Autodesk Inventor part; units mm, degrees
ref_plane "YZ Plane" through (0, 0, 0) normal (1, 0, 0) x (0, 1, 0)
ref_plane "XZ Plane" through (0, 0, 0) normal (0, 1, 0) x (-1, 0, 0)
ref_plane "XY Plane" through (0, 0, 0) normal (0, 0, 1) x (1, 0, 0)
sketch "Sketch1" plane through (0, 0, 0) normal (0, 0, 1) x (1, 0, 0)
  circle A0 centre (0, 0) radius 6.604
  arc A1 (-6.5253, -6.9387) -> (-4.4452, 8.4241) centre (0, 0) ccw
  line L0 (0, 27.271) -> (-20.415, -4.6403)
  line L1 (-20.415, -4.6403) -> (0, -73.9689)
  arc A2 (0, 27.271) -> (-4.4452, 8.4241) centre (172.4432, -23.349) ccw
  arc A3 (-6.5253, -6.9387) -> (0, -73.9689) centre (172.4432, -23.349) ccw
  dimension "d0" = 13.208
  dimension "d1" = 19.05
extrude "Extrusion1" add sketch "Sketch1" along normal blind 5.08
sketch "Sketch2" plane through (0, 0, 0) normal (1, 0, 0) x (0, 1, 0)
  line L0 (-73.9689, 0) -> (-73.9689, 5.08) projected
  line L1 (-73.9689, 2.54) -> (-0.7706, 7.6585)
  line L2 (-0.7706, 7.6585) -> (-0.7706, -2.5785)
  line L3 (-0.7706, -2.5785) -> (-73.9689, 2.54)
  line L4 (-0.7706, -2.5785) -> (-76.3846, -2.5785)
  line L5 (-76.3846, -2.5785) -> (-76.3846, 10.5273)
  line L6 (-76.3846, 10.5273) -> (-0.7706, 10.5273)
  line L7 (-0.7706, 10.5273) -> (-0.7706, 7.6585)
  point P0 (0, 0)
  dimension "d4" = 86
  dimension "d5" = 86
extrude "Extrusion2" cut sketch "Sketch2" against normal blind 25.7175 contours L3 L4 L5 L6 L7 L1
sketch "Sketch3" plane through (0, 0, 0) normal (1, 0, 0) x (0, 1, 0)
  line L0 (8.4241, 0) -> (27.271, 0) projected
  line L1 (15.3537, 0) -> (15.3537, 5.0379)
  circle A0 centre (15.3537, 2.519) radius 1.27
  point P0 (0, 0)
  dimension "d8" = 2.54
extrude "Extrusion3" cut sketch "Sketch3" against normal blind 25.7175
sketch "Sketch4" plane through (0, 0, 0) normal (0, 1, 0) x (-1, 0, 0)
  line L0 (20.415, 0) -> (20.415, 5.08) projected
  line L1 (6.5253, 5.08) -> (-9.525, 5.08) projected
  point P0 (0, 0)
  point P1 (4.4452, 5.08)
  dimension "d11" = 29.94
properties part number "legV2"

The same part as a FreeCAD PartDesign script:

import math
import FreeCAD as App
import Part
import Sketcher

V = App.Vector
Q = App.Units.Quantity

doc = App.newDocument("Part")
body = doc.addObject("PartDesign::Body", "Body")

# Sketch on XY plane
sketch1 = doc.addObject("Sketcher::SketchObject", "Sketch")
body.addObject(sketch1)
sketch1.AttachmentSupport = (doc.XY_Plane, [""])
sketch1.MapMode = "FlatFace"
sketch1.addGeometry([
    Part.ArcOfCircle(Part.Circle(V(172, -23, 0), V(0, 0, 1), 180), math.radians(175), math.radians(196)),  # 0
    Part.ArcOfCircle(Part.Circle(V(0, 0, 0), V(0, 0, 1), 10), math.radians(-133), math.radians(118)),  # 1
    Part.ArcOfCircle(Part.Circle(V(172, -23, 0), V(0, 0, 1), 180), math.radians(163.64), math.radians(169.82)),  # 2
    Part.LineSegment(V(0, 27, 0), V(-20, -5, 0)),  # 3
    Part.LineSegment(V(-20, -5, 0), V(0, -74, 0)),  # 4
    Part.Circle(V(0, 0, 0), V(0, 0, 1), 7),  # 5
], False)
sketch1.addConstraint([
    Sketcher.Constraint("Coincident", 0, 1, 1, 1),
    Sketcher.Constraint("Coincident", 1, 2, 2, 2),
    Sketcher.Constraint("Coincident", 2, 1, 3, 1),
    Sketcher.Constraint("Coincident", 3, 2, 4, 1),
    Sketcher.Constraint("Coincident", 4, 2, 0, 2),
    Sketcher.Constraint("Coincident", 1, 3, -1, 1),
    Sketcher.Constraint("Coincident", 5, 3, -1, 1),
    Sketcher.Constraint("PointOnObject", 2, 1, -2),
    Sketcher.Constraint("PointOnObject", 4, 2, -2),
    Sketcher.Constraint("Diameter", 5, Q("0.52 in")),
    Sketcher.Constraint("Radius", 1, Q("0.375 in")),
    Sketcher.Constraint("Radius", 0, 179.7193),
    Sketcher.Constraint("Radius", 2, 179.714),
    Sketcher.Constraint("DistanceX", 1, 2, -1, 1, Q("0.175 in")),
    Sketcher.Constraint("DistanceX", 0, 1, 0, 3, Q("7.046 in")),
    Sketcher.Constraint("DistanceY", 1, 2, 2, 1, Q("0.742 in")),
    Sketcher.Constraint("DistanceX", -1, 1, 0, 3, Q("6.7891 in")),
    Sketcher.Constraint("DistanceY", 3, 2, -1, 1, Q("0.1827 in")),
    Sketcher.Constraint("Distance", 3, 37.8828),
])
pad1 = doc.addObject("PartDesign::Pad", "Pad")
body.addObject(pad1)
pad1.Profile = sketch1
pad1.Length = Q("0.2 in")

# Sketch on YZ plane
sketch2 = doc.addObject("Sketcher::SketchObject", "Sketch001")
body.addObject(sketch2)
sketch2.AttachmentSupport = (doc.YZ_Plane, [""])
sketch2.MapMode = "FlatFace"
sketch2.addGeometry([
    Part.LineSegment(V(-0.8, -2.6, 0), V(-74, 2.5, 0)),  # 0
    Part.LineSegment(V(-74, 2.5, 0), V(-0.8, 7.7, 0)),  # 1
    Part.LineSegment(V(-0.8, 7.7, 0), V(-0.8, 10.5, 0)),  # 2
    Part.LineSegment(V(-0.8, 10.5, 0), V(-76.4, 10.5, 0)),  # 3
    Part.LineSegment(V(-76.4, 10.5, 0), V(-76.4, -2.6, 0)),  # 4
    Part.LineSegment(V(-76.4, -2.6, 0), V(-0.8, -2.6, 0)),  # 5
], False)
sketch2.addConstraint([
    Sketcher.Constraint("Coincident", 0, 2, 1, 1),
    Sketcher.Constraint("Coincident", 1, 2, 2, 1),
    Sketcher.Constraint("Coincident", 2, 2, 3, 1),
    Sketcher.Constraint("Coincident", 3, 2, 4, 1),
    Sketcher.Constraint("Coincident", 4, 2, 5, 1),
    Sketcher.Constraint("Coincident", 5, 2, 0, 1),
    Sketcher.Constraint("Vertical", 2),
    Sketcher.Constraint("Horizontal", 3),
    Sketcher.Constraint("Vertical", 4),
    Sketcher.Constraint("Horizontal", 5),
    Sketcher.Constraint("Vertical", 2, 2, 5, 2),
    Sketcher.Constraint("Equal", 0, 1),
    Sketcher.Constraint("Angle", 0, Q("176 deg")),
    Sketcher.Constraint("DistanceY", -1, 1, 0, 2, Q("0.1 in")),
    Sketcher.Constraint("DistanceX", 3, 2, 3, 1, 75.614),
    Sketcher.Constraint("DistanceY", 2, 1, 2, 2, 2.8688),
    Sketcher.Constraint("DistanceY", 4, 2, 4, 1, 13.1058),
    Sketcher.Constraint("DistanceX", 0, 2, -1, 1, 73.969),
])
pocket1 = doc.addObject("PartDesign::Pocket", "Pocket")
body.addObject(pocket1)
pocket1.Profile = sketch2
pocket1.Length = Q("1.0125 in")

# Sketch on YZ plane
sketch3 = doc.addObject("Sketcher::SketchObject", "Sketch002")
body.addObject(sketch3)
sketch3.AttachmentSupport = (doc.YZ_Plane, [""])
sketch3.MapMode = "FlatFace"
sketch3.addGeometry(Part.Circle(V(15.4, 2.5, 0), V(0, 0, 1), 1.3), False)
sketch3.addConstraint([
    Sketcher.Constraint("Diameter", 0, Q("0.1 in")),
    Sketcher.Constraint("DistanceX", -1, 1, 0, 3, 15.3537),
    Sketcher.Constraint("DistanceY", -1, 1, 0, 3, 2.519),
])
pocket2 = doc.addObject("PartDesign::Pocket", "Pocket001")
body.addObject(pocket2)
pocket2.Profile = sketch3
pocket2.Length = Q("1.0125 in")

doc.recompute()
